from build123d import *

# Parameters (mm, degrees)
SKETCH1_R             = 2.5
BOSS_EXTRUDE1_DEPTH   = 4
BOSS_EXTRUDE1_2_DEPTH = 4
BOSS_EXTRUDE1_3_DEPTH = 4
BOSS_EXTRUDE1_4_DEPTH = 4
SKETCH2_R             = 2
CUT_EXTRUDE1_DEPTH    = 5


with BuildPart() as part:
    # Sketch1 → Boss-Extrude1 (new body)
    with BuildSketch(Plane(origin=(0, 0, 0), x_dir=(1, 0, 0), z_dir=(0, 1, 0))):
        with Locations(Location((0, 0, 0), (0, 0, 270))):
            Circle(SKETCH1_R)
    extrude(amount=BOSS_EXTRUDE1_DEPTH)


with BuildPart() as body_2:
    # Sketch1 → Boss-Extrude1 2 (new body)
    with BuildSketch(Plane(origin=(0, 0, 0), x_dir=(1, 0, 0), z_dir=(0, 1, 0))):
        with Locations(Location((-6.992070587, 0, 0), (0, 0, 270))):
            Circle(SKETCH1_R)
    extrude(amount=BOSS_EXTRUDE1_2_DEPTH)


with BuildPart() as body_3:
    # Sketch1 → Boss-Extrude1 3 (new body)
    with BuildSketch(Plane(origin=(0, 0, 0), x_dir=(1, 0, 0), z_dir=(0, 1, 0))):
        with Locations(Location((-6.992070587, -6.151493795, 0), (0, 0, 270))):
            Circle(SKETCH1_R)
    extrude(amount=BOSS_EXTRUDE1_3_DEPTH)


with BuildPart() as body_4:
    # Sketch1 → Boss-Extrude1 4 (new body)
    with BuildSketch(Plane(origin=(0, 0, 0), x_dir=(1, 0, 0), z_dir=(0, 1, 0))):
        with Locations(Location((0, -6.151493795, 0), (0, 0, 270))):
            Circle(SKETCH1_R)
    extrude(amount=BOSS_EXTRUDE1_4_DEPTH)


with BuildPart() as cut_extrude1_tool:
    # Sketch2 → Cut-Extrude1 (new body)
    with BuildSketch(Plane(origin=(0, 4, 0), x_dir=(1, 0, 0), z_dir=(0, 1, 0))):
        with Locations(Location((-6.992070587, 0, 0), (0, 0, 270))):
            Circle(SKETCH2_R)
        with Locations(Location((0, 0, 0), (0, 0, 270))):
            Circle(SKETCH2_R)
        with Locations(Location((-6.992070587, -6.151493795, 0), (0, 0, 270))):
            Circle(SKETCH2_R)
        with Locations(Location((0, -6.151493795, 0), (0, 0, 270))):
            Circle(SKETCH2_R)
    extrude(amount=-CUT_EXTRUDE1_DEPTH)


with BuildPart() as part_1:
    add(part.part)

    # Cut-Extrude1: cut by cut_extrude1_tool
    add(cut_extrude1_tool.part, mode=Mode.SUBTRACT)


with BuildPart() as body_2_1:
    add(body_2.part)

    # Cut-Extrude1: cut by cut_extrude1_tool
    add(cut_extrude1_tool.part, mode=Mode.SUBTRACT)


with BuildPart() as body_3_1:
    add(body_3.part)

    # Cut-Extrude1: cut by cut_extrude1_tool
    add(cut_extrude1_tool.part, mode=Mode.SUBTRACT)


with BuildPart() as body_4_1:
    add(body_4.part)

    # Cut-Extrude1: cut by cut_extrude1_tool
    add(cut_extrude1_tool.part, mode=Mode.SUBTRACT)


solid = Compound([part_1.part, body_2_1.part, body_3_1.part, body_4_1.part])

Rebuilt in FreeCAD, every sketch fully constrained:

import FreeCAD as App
import Part
import Sketcher
from FreeCAD import Vector

doc = App.newDocument("Part")
params = doc.addObject("Spreadsheet::Sheet", "Params")
for row, (alias, value) in enumerate([
    ("sketch1_diameter", "5 mm"),
    ("pad1_length", "4 mm"),
    ("sketch2_diameter", "5 mm"),
    ("pad2_length", "4 mm"),
    ("sketch3_diameter", "5 mm"),
    ("pad3_length", "4 mm"),
    ("sketch4_diameter", "5 mm"),
    ("pad4_length", "4 mm"),
    ("sketch5_diameter", "4 mm"),
    ("pad5_length", "5 mm"),
], start=1):
    params.set(f"A{row}", alias)
    params.set(f"B{row}", "=" + value)
    params.setAlias(f"B{row}", alias)

body = doc.addObject("PartDesign::Body", "Body")

# Sketch on XZ plane
sketch1 = doc.addObject("Sketcher::SketchObject", "Sketch")
body.addObject(sketch1)
sketch1.AttachmentSupport = (doc.XZ_Plane, [""])
sketch1.MapMode = "FlatFace"
sketch1.addGeometry(Part.Circle(Vector(0, 0, 0), Vector(0, 0, 1), 2.5), False)
sketch1.addConstraint(Sketcher.Constraint("Coincident", 0, 3, -1, 1))
sketch1.addConstraint(Sketcher.Constraint("Diameter", 0, 5.0))
sketch1.setExpression("Constraints[1]", "Params.sketch1_diameter")
pad1 = doc.addObject("PartDesign::Pad", "Pad")
body.addObject(pad1)
pad1.Profile = sketch1
pad1.setExpression("Length", "Params.pad1_length")
pad1.Reversed = True
body2 = doc.addObject("PartDesign::Body", "Body001")

# Sketch on XZ plane
sketch2 = doc.addObject("Sketcher::SketchObject", "Sketch001")
body2.addObject(sketch2)
sketch2.AttachmentSupport = (doc.getObject("XZ_Plane001"), [""])
sketch2.MapMode = "FlatFace"
sketch2.addGeometry(Part.Circle(Vector(-7, 0, 0), Vector(0, 0, 1), 2.5), False)
sketch2.addConstraint(Sketcher.Constraint("PointOnObject", 0, 3, -1))
sketch2.addConstraint(Sketcher.Constraint("Diameter", 0, 5.0))
sketch2.addConstraint(Sketcher.Constraint("DistanceX", 0, 3, -1, 1, 6.992071))
sketch2.setExpression("Constraints[1]", "Params.sketch2_diameter")
pad2 = doc.addObject("PartDesign::Pad", "Pad001")
body2.addObject(pad2)
pad2.Profile = sketch2
pad2.setExpression("Length", "Params.pad2_length")
pad2.Reversed = True
body3 = doc.addObject("PartDesign::Body", "Body002")

# Sketch on XZ plane
sketch3 = doc.addObject("Sketcher::SketchObject", "Sketch002")
body3.addObject(sketch3)
sketch3.AttachmentSupport = (doc.getObject("XZ_Plane002"), [""])
sketch3.MapMode = "FlatFace"
sketch3.addGeometry(Part.Circle(Vector(-7, 6.2, 0), Vector(0, 0, 1), 2.5), False)
sketch3.addConstraint(Sketcher.Constraint("Diameter", 0, 5.0))
sketch3.addConstraint(Sketcher.Constraint("DistanceX", 0, 3, -1, 1, 6.992071))
sketch3.addConstraint(Sketcher.Constraint("DistanceY", -1, 1, 0, 3, 6.151494))
sketch3.setExpression("Constraints[0]", "Params.sketch3_diameter")
pad3 = doc.addObject("PartDesign::Pad", "Pad002")
body3.addObject(pad3)
pad3.Profile = sketch3
pad3.setExpression("Length", "Params.pad3_length")
pad3.Reversed = True
body4 = doc.addObject("PartDesign::Body", "Body003")

# Sketch on XZ plane
sketch4 = doc.addObject("Sketcher::SketchObject", "Sketch003")
body4.addObject(sketch4)
sketch4.AttachmentSupport = (doc.getObject("XZ_Plane003"), [""])
sketch4.MapMode = "FlatFace"
sketch4.addGeometry(Part.Circle(Vector(0, 6.2, 0), Vector(0, 0, 1), 2.5), False)
sketch4.addConstraint(Sketcher.Constraint("PointOnObject", 0, 3, -2))
sketch4.addConstraint(Sketcher.Constraint("Diameter", 0, 5.0))
sketch4.addConstraint(Sketcher.Constraint("DistanceY", -1, 1, 0, 3, 6.151494))
sketch4.setExpression("Constraints[1]", "Params.sketch4_diameter")
pad4 = doc.addObject("PartDesign::Pad", "Pad003")
body4.addObject(pad4)
pad4.Profile = sketch4
pad4.setExpression("Length", "Params.pad4_length")
pad4.Reversed = True
body5 = doc.addObject("PartDesign::Body", "Body004")
body5.AllowCompound = True

# Sketch on XZ plane
sketch5 = doc.addObject("Sketcher::SketchObject", "Sketch004")
body5.addObject(sketch5)
sketch5.AttachmentSupport = (doc.getObject("XZ_Plane004"), [""])
sketch5.MapMode = "FlatFace"
sketch5.AttachmentOffset = App.Placement(Vector(0, 0, -4), App.Rotation())
sketch5.addGeometry(Part.Circle(Vector(-7, 0, 0), Vector(0, 0, 1), 2), False)
sketch5.addGeometry(Part.Circle(Vector(0, 0, 0), Vector(0, 0, 1), 2), False)
sketch5.addGeometry(Part.Circle(Vector(-7, 6.2, 0), Vector(0, 0, 1), 2), False)
sketch5.addGeometry(Part.Circle(Vector(0, 6.2, 0), Vector(0, 0, 1), 2), False)
sketch5.addConstraint(Sketcher.Constraint("Coincident", 1, 3, -1, 1))
sketch5.addConstraint(Sketcher.Constraint("Equal", 0, 1))
sketch5.addConstraint(Sketcher.Constraint("Equal", 1, 2))
sketch5.addConstraint(Sketcher.Constraint("Equal", 2, 3))
sketch5.addConstraint(Sketcher.Constraint("PointOnObject", 0, 3, -1))
sketch5.addConstraint(Sketcher.Constraint("PointOnObject", 3, 3, -2))
sketch5.addConstraint(Sketcher.Constraint("Horizontal", 2, 3, 3, 3))
sketch5.addConstraint(Sketcher.Constraint("Vertical", 0, 3, 2, 3))
sketch5.addConstraint(Sketcher.Constraint("Diameter", 0, 4.0))
sketch5.addConstraint(Sketcher.Constraint("DistanceX", 0, 3, -1, 1, 6.992071))
sketch5.addConstraint(Sketcher.Constraint("DistanceY", -1, 1, 2, 3, 6.151494))
sketch5.setExpression("Constraints[8]", "Params.sketch5_diameter")
pad5 = doc.addObject("PartDesign::Pad", "Pad004")
body5.addObject(pad5)
pad5.Profile = sketch5
pad5.setExpression("Length", "Params.pad5_length")
doc.recompute()

body6 = doc.addObject("PartDesign::Body", "Body005")
body6.BaseFeature = body5
boolean = doc.addObject("PartDesign::Boolean", "Boolean")
body.addObject(boolean)
boolean.Type = "Cut"
boolean.addObjects([body6])
doc.recompute()

body7 = doc.addObject("PartDesign::Body", "Body006")
body7.BaseFeature = body5
boolean2 = doc.addObject("PartDesign::Boolean", "Boolean001")
body2.addObject(boolean2)
boolean2.Type = "Cut"
boolean2.addObjects([body7])
doc.recompute()

body8 = doc.addObject("PartDesign::Body", "Body007")
body8.BaseFeature = body5
boolean3 = doc.addObject("PartDesign::Boolean", "Boolean002")
body3.addObject(boolean3)
boolean3.Type = "Cut"
boolean3.addObjects([body8])
doc.recompute()

boolean4 = doc.addObject("PartDesign::Boolean", "Boolean003")
body4.addObject(boolean4)
boolean4.Type = "Cut"
boolean4.addObjects([body5])

doc.recompute()
